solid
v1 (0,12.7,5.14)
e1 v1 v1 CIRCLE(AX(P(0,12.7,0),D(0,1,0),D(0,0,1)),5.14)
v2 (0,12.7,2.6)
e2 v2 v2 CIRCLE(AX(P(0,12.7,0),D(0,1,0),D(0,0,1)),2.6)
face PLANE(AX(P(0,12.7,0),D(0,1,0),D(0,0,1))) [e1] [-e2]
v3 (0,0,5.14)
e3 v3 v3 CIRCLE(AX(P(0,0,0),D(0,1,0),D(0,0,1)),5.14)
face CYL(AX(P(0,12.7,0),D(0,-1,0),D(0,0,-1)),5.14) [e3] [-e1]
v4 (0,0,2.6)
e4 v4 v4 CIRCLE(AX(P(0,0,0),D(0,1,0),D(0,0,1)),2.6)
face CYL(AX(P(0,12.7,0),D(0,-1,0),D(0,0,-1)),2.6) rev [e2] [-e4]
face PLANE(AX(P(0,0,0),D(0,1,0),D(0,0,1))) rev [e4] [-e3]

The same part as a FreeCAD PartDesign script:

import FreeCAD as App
import Part
import Sketcher

V = App.Vector
Q = App.Units.Quantity

doc = App.newDocument("Part")
body = doc.addObject("PartDesign::Body", "Body")

# Sketch on XZ plane
sketch1 = doc.addObject("Sketcher::SketchObject", "Sketch")
body.addObject(sketch1)
sketch1.AttachmentSupport = (doc.XZ_Plane, [""])
sketch1.MapMode = "FlatFace"
sketch1.addGeometry(Part.Circle(V(0, 0, 0), V(0, 0, 1), 5.1), False)
sketch1.addGeometry(Part.Circle(V(0, 0, 0), V(0, 0, 1), 2.6), False)
sketch1.addConstraint(Sketcher.Constraint("Coincident", 0, 3, -1, 1))
sketch1.addConstraint(Sketcher.Constraint("Coincident", 1, 3, -1, 1))
sketch1.addConstraint(Sketcher.Constraint("Diameter", 1, Q("5.2 mm")))
sketch1.addConstraint(Sketcher.Constraint("Diameter", 0, Q("10.28 mm")))
pad1 = doc.addObject("PartDesign::Pad", "Pad")
body.addObject(pad1)
pad1.Profile = sketch1
pad1.Length = 12.7
pad1.Reversed = True

doc.recompute()
